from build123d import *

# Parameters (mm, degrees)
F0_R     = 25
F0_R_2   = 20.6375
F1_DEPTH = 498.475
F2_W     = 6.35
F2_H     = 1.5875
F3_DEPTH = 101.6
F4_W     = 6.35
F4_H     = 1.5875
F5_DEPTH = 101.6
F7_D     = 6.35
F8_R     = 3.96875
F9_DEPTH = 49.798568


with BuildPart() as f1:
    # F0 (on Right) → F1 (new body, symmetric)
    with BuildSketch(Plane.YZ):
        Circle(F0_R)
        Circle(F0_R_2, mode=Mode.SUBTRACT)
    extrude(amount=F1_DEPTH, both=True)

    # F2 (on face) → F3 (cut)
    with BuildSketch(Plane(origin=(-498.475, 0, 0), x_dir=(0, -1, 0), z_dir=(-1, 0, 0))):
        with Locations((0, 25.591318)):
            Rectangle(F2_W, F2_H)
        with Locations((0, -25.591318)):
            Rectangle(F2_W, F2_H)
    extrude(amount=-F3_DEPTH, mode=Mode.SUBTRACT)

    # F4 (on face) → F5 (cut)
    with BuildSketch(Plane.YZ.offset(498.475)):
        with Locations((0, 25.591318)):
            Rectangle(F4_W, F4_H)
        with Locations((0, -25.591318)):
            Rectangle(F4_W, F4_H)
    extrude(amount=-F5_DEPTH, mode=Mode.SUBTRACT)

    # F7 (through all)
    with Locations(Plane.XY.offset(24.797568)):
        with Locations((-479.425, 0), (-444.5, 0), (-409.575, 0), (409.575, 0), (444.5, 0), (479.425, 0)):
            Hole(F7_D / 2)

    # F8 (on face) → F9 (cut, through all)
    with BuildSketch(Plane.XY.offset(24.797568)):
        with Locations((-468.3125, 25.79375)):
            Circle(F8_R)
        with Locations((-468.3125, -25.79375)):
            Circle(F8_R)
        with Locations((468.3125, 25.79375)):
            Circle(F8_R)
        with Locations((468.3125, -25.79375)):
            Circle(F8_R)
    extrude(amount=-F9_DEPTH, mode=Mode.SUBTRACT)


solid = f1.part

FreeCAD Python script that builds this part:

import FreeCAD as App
import Part
import Sketcher
from FreeCAD import Vector
Q = App.Units.Quantity

doc = App.newDocument("Part")
body = doc.addObject("PartDesign::Body", "Body")

# Sketch on YZ plane
sketch1 = doc.addObject("Sketcher::SketchObject", "Sketch")
body.addObject(sketch1)
sketch1.AttachmentSupport = (doc.YZ_Plane, [""])
sketch1.MapMode = "FlatFace"
sketch1.addGeometry([
    Part.Circle(Vector(0, 0, 0), Vector(0, 0, 1), 25),
    Part.Circle(Vector(0, 0, 0), Vector(0, 0, 1), 20.6375),
], False)
sketch1.addConstraint([
    Sketcher.Constraint("Coincident", 0, 3, -1, 1),
    Sketcher.Constraint("Coincident", 1, 3, -1, 1),
    Sketcher.Constraint("Diameter", 1, Q("1.625 in")),
    Sketcher.Constraint("Diameter", 0, Q("50 mm")),
])
pad1 = doc.addObject("PartDesign::Pad", "Pad")
body.addObject(pad1)
pad1.Profile = sketch1
pad1.Length = Q("39.25 in")
pad1.Midplane = True

# Sketch on YZ plane
sketch2 = doc.addObject("Sketcher::SketchObject", "Sketch001")
body.addObject(sketch2)
sketch2.AttachmentSupport = (doc.YZ_Plane, [""])
sketch2.MapMode = "FlatFace"
sketch2.AttachmentOffset = App.Placement(Vector(0, 0, -19.625 * 25.4), App.Rotation())
sketch2.addGeometry([
    Part.LineSegment(Vector(3.175, 26.385068, 0), Vector(3.175, 24.797568, 0)),  # 0
    Part.LineSegment(Vector(3.175, 24.797568, 0), Vector(-3.175, 24.797568, 0)),  # 1
    Part.LineSegment(Vector(-3.175, 24.797568, 0), Vector(-3.175, 26.385068, 0)),  # 2
    Part.LineSegment(Vector(-3.175, 26.385068, 0), Vector(3.175, 26.385068, 0)),  # 3
    Part.LineSegment(Vector(3.175, -24.797568, 0), Vector(3.175, -26.385068, 0)),  # 4
    Part.LineSegment(Vector(3.175, -26.385068, 0), Vector(-3.175, -26.385068, 0)),  # 5
    Part.LineSegment(Vector(-3.175, -26.385068, 0), Vector(-3.175, -24.797568, 0)),  # 6
    Part.LineSegment(Vector(-3.175, -24.797568, 0), Vector(3.175, -24.797568, 0)),  # 7
], False)
sketch2.addConstraint([
    Sketcher.Constraint("Coincident", 0, 2, 1, 1),
    Sketcher.Constraint("Coincident", 1, 2, 2, 1),
    Sketcher.Constraint("Coincident", 2, 2, 3, 1),
    Sketcher.Constraint("Coincident", 3, 2, 0, 1),
    Sketcher.Constraint("Coincident", 4, 2, 5, 1),
    Sketcher.Constraint("Coincident", 5, 2, 6, 1),
    Sketcher.Constraint("Coincident", 6, 2, 7, 1),
    Sketcher.Constraint("Coincident", 7, 2, 4, 1),
    Sketcher.Constraint("Vertical", 0),
    Sketcher.Constraint("Horizontal", 1),
    Sketcher.Constraint("Vertical", 2),
    Sketcher.Constraint("Horizontal", 3),
    Sketcher.Constraint("Vertical", 4),
    Sketcher.Constraint("Horizontal", 5),
    Sketcher.Constraint("Vertical", 6),
    Sketcher.Constraint("Horizontal", 7),
    Sketcher.Constraint("Symmetric", 2, 2, 4, 2, -1, 1),
    Sketcher.Constraint("Symmetric", 0, 2, 6, 2, -1, 1),
    Sketcher.Constraint("Vertical", 3, 2, 4, 2),
    Sketcher.Constraint("DistanceX", 1, 2, 1, 1, Q("0.25 in")),
    Sketcher.Constraint("DistanceY", 0, 2, 0, 1, Q("0.0625 in")),
    Sketcher.Constraint("DistanceY", -1, 1, 2, 2, Q("26.385068 mm")),
])
pocket1 = doc.addObject("PartDesign::Pocket", "Pocket")
body.addObject(pocket1)
pocket1.Profile = sketch2
pocket1.Length = Q("4 in")
pocket1.Reversed = True

# Sketch on YZ plane
sketch3 = doc.addObject("Sketcher::SketchObject", "Sketch002")
body.addObject(sketch3)
sketch3.AttachmentSupport = (doc.YZ_Plane, [""])
sketch3.MapMode = "FlatFace"
sketch3.AttachmentOffset = App.Placement(Vector(0, 0, 19.625 * 25.4), App.Rotation())
sketch3.addGeometry([
    Part.LineSegment(Vector(-3.175, 26.385068, 0), Vector(-3.175, 24.797568, 0)),  # 0
    Part.LineSegment(Vector(-3.175, 24.797568, 0), Vector(3.175, 24.797568, 0)),  # 1
    Part.LineSegment(Vector(3.175, 24.797568, 0), Vector(3.175, 26.385068, 0)),  # 2
    Part.LineSegment(Vector(3.175, 26.385068, 0), Vector(-3.175, 26.385068, 0)),  # 3
    Part.LineSegment(Vector(-3.175, -24.797568, 0), Vector(-3.175, -26.385068, 0)),  # 4
    Part.LineSegment(Vector(-3.175, -26.385068, 0), Vector(3.175, -26.385068, 0)),  # 5
    Part.LineSegment(Vector(3.175, -26.385068, 0), Vector(3.175, -24.797568, 0)),  # 6
    Part.LineSegment(Vector(3.175, -24.797568, 0), Vector(-3.175, -24.797568, 0)),  # 7
], False)
sketch3.addConstraint([
    Sketcher.Constraint("Coincident", 0, 2, 1, 1),
    Sketcher.Constraint("Coincident", 1, 2, 2, 1),
    Sketcher.Constraint("Coincident", 2, 2, 3, 1),
    Sketcher.Constraint("Coincident", 3, 2, 0, 1),
    Sketcher.Constraint("Coincident", 4, 2, 5, 1),
    Sketcher.Constraint("Coincident", 5, 2, 6, 1),
    Sketcher.Constraint("Coincident", 6, 2, 7, 1),
    Sketcher.Constraint("Coincident", 7, 2, 4, 1),
    Sketcher.Constraint("Vertical", 0),
    Sketcher.Constraint("Horizontal", 1),
    Sketcher.Constraint("Vertical", 2),
    Sketcher.Constraint("Horizontal", 3),
    Sketcher.Constraint("Vertical", 4),
    Sketcher.Constraint("Horizontal", 5),
    Sketcher.Constraint("Vertical", 6),
    Sketcher.Constraint("Horizontal", 7),
    Sketcher.Constraint("Symmetric", 2, 2, 4, 2, -1, 1),
    Sketcher.Constraint("Symmetric", 0, 2, 6, 2, -1, 1),
    Sketcher.Constraint("Vertical", 3, 2, 4, 2),
    Sketcher.Constraint("DistanceX", 1, 1, 1, 2, Q("0.25 in")),
    Sketcher.Constraint("DistanceY", 0, 2, 0, 1, Q("0.0625 in")),
    Sketcher.Constraint("DistanceY", -1, 1, 2, 2, Q("26.385068 mm")),
])
pocket2 = doc.addObject("PartDesign::Pocket", "Pocket001")
body.addObject(pocket2)
pocket2.Profile = sketch3
pocket2.Length = Q("4 in")

# Sketch on XY plane
sketch4 = doc.addObject("Sketcher::SketchObject", "Sketch003")
body.addObject(sketch4)
sketch4.AttachmentSupport = (doc.XY_Plane, [""])
sketch4.MapMode = "FlatFace"
sketch4.AttachmentOffset = App.Placement(Vector(0, 0, 24.797568), App.Rotation())
sketch4.addGeometry([
    Part.Circle(Vector(-479.425, 0, 0), Vector(0, 0, 1), 3.175),  # 0
    Part.Circle(Vector(-444.5, 0, 0), Vector(0, 0, 1), 3.175),  # 1
    Part.Circle(Vector(-409.575, 0, 0), Vector(0, 0, 1), 3.175),  # 2
    Part.Circle(Vector(409.575, 0, 0), Vector(0, 0, 1), 3.175),  # 3
    Part.Circle(Vector(444.5, 0, 0), Vector(0, 0, 1), 3.175),  # 4
    Part.Circle(Vector(479.425, 0, 0), Vector(0, 0, 1), 3.175),  # 5
], False)
sketch4.addConstraint([
    Sketcher.Constraint("Equal", 0, 1),
    Sketcher.Constraint("Equal", 1, 2),
    Sketcher.Constraint("Equal", 2, 3),
    Sketcher.Constraint("Equal", 3, 4),
    Sketcher.Constraint("Equal", 4, 5),
    Sketcher.Constraint("Symmetric", 2, 3, 3, 3, -1, 1),
    Sketcher.Constraint("Symmetric", 1, 3, 4, 3, -1, 1),
    Sketcher.Constraint("Symmetric", 0, 3, 5, 3, -1, 1),
    Sketcher.Constraint("PointOnObject", 0, 3, -1),
    Sketcher.Constraint("PointOnObject", 1, 3, -1),
    Sketcher.Constraint("PointOnObject", 2, 3, -1),
    Sketcher.Constraint("Diameter", 0, Q("0.25 in")),
    Sketcher.Constraint("DistanceX", 0, 3, 3, 3, Q("35 in")),
    Sketcher.Constraint("DistanceX", 1, 3, 4, 3, Q("35 in")),
    Sketcher.Constraint("DistanceX", 0, 3, 2, 3, Q("2.75 in")),
])
doc.recompute()
hole = doc.addObject("PartDesign::Hole", "Hole")
body.addObject(hole)
hole.Profile = sketch4
hole.ThreadType = "None"
hole.Diameter = Q("0.25 in")
hole.DepthType = "ThroughAll"

# Sketch on XY plane
sketch5 = doc.addObject("Sketcher::SketchObject", "Sketch004")
body.addObject(sketch5)
sketch5.AttachmentSupport = (doc.XY_Plane, [""])
sketch5.MapMode = "FlatFace"
sketch5.AttachmentOffset = App.Placement(Vector(0, 0, 24.797568), App.Rotation())
sketch5.addGeometry([
    Part.Circle(Vector(-468.3125, 25.79375, 0), Vector(0, 0, 1), 3.96875),
    Part.Circle(Vector(-468.3125, -25.79375, 0), Vector(0, 0, 1), 3.96875),
    Part.Circle(Vector(468.3125, 25.79375, 0), Vector(0, 0, 1), 3.96875),
    Part.Circle(Vector(468.3125, -25.79375, 0), Vector(0, 0, 1), 3.96875),
], False)
sketch5.addConstraint([
    Sketcher.Constraint("Equal", 0, 1),
    Sketcher.Constraint("Equal", 1, 2),
    Sketcher.Constraint("Equal", 2, 3),
    Sketcher.Constraint("Symmetric", 1, 3, 2, 3, -1, 1),
    Sketcher.Constraint("Symmetric", 0, 3, 3, 3, -1, 1),
    Sketcher.Constraint("Symmetric", 0, 3, 2, 3, -2),
    Sketcher.Constraint("Diameter", 0, Q("0.3125 in")),
    Sketcher.Constraint("DistanceX", 0, 3, -1, 1, Q("18.4375 in")),
    Sketcher.Constraint("DistanceY", 1, 3, 0, 3, Q("51.5875 mm")),
])
pocket3 = doc.addObject("PartDesign::Pocket", "Pocket002")
body.addObject(pocket3)
pocket3.Profile = sketch5
pocket3.Type = "ThroughAll"

doc.recompute()
